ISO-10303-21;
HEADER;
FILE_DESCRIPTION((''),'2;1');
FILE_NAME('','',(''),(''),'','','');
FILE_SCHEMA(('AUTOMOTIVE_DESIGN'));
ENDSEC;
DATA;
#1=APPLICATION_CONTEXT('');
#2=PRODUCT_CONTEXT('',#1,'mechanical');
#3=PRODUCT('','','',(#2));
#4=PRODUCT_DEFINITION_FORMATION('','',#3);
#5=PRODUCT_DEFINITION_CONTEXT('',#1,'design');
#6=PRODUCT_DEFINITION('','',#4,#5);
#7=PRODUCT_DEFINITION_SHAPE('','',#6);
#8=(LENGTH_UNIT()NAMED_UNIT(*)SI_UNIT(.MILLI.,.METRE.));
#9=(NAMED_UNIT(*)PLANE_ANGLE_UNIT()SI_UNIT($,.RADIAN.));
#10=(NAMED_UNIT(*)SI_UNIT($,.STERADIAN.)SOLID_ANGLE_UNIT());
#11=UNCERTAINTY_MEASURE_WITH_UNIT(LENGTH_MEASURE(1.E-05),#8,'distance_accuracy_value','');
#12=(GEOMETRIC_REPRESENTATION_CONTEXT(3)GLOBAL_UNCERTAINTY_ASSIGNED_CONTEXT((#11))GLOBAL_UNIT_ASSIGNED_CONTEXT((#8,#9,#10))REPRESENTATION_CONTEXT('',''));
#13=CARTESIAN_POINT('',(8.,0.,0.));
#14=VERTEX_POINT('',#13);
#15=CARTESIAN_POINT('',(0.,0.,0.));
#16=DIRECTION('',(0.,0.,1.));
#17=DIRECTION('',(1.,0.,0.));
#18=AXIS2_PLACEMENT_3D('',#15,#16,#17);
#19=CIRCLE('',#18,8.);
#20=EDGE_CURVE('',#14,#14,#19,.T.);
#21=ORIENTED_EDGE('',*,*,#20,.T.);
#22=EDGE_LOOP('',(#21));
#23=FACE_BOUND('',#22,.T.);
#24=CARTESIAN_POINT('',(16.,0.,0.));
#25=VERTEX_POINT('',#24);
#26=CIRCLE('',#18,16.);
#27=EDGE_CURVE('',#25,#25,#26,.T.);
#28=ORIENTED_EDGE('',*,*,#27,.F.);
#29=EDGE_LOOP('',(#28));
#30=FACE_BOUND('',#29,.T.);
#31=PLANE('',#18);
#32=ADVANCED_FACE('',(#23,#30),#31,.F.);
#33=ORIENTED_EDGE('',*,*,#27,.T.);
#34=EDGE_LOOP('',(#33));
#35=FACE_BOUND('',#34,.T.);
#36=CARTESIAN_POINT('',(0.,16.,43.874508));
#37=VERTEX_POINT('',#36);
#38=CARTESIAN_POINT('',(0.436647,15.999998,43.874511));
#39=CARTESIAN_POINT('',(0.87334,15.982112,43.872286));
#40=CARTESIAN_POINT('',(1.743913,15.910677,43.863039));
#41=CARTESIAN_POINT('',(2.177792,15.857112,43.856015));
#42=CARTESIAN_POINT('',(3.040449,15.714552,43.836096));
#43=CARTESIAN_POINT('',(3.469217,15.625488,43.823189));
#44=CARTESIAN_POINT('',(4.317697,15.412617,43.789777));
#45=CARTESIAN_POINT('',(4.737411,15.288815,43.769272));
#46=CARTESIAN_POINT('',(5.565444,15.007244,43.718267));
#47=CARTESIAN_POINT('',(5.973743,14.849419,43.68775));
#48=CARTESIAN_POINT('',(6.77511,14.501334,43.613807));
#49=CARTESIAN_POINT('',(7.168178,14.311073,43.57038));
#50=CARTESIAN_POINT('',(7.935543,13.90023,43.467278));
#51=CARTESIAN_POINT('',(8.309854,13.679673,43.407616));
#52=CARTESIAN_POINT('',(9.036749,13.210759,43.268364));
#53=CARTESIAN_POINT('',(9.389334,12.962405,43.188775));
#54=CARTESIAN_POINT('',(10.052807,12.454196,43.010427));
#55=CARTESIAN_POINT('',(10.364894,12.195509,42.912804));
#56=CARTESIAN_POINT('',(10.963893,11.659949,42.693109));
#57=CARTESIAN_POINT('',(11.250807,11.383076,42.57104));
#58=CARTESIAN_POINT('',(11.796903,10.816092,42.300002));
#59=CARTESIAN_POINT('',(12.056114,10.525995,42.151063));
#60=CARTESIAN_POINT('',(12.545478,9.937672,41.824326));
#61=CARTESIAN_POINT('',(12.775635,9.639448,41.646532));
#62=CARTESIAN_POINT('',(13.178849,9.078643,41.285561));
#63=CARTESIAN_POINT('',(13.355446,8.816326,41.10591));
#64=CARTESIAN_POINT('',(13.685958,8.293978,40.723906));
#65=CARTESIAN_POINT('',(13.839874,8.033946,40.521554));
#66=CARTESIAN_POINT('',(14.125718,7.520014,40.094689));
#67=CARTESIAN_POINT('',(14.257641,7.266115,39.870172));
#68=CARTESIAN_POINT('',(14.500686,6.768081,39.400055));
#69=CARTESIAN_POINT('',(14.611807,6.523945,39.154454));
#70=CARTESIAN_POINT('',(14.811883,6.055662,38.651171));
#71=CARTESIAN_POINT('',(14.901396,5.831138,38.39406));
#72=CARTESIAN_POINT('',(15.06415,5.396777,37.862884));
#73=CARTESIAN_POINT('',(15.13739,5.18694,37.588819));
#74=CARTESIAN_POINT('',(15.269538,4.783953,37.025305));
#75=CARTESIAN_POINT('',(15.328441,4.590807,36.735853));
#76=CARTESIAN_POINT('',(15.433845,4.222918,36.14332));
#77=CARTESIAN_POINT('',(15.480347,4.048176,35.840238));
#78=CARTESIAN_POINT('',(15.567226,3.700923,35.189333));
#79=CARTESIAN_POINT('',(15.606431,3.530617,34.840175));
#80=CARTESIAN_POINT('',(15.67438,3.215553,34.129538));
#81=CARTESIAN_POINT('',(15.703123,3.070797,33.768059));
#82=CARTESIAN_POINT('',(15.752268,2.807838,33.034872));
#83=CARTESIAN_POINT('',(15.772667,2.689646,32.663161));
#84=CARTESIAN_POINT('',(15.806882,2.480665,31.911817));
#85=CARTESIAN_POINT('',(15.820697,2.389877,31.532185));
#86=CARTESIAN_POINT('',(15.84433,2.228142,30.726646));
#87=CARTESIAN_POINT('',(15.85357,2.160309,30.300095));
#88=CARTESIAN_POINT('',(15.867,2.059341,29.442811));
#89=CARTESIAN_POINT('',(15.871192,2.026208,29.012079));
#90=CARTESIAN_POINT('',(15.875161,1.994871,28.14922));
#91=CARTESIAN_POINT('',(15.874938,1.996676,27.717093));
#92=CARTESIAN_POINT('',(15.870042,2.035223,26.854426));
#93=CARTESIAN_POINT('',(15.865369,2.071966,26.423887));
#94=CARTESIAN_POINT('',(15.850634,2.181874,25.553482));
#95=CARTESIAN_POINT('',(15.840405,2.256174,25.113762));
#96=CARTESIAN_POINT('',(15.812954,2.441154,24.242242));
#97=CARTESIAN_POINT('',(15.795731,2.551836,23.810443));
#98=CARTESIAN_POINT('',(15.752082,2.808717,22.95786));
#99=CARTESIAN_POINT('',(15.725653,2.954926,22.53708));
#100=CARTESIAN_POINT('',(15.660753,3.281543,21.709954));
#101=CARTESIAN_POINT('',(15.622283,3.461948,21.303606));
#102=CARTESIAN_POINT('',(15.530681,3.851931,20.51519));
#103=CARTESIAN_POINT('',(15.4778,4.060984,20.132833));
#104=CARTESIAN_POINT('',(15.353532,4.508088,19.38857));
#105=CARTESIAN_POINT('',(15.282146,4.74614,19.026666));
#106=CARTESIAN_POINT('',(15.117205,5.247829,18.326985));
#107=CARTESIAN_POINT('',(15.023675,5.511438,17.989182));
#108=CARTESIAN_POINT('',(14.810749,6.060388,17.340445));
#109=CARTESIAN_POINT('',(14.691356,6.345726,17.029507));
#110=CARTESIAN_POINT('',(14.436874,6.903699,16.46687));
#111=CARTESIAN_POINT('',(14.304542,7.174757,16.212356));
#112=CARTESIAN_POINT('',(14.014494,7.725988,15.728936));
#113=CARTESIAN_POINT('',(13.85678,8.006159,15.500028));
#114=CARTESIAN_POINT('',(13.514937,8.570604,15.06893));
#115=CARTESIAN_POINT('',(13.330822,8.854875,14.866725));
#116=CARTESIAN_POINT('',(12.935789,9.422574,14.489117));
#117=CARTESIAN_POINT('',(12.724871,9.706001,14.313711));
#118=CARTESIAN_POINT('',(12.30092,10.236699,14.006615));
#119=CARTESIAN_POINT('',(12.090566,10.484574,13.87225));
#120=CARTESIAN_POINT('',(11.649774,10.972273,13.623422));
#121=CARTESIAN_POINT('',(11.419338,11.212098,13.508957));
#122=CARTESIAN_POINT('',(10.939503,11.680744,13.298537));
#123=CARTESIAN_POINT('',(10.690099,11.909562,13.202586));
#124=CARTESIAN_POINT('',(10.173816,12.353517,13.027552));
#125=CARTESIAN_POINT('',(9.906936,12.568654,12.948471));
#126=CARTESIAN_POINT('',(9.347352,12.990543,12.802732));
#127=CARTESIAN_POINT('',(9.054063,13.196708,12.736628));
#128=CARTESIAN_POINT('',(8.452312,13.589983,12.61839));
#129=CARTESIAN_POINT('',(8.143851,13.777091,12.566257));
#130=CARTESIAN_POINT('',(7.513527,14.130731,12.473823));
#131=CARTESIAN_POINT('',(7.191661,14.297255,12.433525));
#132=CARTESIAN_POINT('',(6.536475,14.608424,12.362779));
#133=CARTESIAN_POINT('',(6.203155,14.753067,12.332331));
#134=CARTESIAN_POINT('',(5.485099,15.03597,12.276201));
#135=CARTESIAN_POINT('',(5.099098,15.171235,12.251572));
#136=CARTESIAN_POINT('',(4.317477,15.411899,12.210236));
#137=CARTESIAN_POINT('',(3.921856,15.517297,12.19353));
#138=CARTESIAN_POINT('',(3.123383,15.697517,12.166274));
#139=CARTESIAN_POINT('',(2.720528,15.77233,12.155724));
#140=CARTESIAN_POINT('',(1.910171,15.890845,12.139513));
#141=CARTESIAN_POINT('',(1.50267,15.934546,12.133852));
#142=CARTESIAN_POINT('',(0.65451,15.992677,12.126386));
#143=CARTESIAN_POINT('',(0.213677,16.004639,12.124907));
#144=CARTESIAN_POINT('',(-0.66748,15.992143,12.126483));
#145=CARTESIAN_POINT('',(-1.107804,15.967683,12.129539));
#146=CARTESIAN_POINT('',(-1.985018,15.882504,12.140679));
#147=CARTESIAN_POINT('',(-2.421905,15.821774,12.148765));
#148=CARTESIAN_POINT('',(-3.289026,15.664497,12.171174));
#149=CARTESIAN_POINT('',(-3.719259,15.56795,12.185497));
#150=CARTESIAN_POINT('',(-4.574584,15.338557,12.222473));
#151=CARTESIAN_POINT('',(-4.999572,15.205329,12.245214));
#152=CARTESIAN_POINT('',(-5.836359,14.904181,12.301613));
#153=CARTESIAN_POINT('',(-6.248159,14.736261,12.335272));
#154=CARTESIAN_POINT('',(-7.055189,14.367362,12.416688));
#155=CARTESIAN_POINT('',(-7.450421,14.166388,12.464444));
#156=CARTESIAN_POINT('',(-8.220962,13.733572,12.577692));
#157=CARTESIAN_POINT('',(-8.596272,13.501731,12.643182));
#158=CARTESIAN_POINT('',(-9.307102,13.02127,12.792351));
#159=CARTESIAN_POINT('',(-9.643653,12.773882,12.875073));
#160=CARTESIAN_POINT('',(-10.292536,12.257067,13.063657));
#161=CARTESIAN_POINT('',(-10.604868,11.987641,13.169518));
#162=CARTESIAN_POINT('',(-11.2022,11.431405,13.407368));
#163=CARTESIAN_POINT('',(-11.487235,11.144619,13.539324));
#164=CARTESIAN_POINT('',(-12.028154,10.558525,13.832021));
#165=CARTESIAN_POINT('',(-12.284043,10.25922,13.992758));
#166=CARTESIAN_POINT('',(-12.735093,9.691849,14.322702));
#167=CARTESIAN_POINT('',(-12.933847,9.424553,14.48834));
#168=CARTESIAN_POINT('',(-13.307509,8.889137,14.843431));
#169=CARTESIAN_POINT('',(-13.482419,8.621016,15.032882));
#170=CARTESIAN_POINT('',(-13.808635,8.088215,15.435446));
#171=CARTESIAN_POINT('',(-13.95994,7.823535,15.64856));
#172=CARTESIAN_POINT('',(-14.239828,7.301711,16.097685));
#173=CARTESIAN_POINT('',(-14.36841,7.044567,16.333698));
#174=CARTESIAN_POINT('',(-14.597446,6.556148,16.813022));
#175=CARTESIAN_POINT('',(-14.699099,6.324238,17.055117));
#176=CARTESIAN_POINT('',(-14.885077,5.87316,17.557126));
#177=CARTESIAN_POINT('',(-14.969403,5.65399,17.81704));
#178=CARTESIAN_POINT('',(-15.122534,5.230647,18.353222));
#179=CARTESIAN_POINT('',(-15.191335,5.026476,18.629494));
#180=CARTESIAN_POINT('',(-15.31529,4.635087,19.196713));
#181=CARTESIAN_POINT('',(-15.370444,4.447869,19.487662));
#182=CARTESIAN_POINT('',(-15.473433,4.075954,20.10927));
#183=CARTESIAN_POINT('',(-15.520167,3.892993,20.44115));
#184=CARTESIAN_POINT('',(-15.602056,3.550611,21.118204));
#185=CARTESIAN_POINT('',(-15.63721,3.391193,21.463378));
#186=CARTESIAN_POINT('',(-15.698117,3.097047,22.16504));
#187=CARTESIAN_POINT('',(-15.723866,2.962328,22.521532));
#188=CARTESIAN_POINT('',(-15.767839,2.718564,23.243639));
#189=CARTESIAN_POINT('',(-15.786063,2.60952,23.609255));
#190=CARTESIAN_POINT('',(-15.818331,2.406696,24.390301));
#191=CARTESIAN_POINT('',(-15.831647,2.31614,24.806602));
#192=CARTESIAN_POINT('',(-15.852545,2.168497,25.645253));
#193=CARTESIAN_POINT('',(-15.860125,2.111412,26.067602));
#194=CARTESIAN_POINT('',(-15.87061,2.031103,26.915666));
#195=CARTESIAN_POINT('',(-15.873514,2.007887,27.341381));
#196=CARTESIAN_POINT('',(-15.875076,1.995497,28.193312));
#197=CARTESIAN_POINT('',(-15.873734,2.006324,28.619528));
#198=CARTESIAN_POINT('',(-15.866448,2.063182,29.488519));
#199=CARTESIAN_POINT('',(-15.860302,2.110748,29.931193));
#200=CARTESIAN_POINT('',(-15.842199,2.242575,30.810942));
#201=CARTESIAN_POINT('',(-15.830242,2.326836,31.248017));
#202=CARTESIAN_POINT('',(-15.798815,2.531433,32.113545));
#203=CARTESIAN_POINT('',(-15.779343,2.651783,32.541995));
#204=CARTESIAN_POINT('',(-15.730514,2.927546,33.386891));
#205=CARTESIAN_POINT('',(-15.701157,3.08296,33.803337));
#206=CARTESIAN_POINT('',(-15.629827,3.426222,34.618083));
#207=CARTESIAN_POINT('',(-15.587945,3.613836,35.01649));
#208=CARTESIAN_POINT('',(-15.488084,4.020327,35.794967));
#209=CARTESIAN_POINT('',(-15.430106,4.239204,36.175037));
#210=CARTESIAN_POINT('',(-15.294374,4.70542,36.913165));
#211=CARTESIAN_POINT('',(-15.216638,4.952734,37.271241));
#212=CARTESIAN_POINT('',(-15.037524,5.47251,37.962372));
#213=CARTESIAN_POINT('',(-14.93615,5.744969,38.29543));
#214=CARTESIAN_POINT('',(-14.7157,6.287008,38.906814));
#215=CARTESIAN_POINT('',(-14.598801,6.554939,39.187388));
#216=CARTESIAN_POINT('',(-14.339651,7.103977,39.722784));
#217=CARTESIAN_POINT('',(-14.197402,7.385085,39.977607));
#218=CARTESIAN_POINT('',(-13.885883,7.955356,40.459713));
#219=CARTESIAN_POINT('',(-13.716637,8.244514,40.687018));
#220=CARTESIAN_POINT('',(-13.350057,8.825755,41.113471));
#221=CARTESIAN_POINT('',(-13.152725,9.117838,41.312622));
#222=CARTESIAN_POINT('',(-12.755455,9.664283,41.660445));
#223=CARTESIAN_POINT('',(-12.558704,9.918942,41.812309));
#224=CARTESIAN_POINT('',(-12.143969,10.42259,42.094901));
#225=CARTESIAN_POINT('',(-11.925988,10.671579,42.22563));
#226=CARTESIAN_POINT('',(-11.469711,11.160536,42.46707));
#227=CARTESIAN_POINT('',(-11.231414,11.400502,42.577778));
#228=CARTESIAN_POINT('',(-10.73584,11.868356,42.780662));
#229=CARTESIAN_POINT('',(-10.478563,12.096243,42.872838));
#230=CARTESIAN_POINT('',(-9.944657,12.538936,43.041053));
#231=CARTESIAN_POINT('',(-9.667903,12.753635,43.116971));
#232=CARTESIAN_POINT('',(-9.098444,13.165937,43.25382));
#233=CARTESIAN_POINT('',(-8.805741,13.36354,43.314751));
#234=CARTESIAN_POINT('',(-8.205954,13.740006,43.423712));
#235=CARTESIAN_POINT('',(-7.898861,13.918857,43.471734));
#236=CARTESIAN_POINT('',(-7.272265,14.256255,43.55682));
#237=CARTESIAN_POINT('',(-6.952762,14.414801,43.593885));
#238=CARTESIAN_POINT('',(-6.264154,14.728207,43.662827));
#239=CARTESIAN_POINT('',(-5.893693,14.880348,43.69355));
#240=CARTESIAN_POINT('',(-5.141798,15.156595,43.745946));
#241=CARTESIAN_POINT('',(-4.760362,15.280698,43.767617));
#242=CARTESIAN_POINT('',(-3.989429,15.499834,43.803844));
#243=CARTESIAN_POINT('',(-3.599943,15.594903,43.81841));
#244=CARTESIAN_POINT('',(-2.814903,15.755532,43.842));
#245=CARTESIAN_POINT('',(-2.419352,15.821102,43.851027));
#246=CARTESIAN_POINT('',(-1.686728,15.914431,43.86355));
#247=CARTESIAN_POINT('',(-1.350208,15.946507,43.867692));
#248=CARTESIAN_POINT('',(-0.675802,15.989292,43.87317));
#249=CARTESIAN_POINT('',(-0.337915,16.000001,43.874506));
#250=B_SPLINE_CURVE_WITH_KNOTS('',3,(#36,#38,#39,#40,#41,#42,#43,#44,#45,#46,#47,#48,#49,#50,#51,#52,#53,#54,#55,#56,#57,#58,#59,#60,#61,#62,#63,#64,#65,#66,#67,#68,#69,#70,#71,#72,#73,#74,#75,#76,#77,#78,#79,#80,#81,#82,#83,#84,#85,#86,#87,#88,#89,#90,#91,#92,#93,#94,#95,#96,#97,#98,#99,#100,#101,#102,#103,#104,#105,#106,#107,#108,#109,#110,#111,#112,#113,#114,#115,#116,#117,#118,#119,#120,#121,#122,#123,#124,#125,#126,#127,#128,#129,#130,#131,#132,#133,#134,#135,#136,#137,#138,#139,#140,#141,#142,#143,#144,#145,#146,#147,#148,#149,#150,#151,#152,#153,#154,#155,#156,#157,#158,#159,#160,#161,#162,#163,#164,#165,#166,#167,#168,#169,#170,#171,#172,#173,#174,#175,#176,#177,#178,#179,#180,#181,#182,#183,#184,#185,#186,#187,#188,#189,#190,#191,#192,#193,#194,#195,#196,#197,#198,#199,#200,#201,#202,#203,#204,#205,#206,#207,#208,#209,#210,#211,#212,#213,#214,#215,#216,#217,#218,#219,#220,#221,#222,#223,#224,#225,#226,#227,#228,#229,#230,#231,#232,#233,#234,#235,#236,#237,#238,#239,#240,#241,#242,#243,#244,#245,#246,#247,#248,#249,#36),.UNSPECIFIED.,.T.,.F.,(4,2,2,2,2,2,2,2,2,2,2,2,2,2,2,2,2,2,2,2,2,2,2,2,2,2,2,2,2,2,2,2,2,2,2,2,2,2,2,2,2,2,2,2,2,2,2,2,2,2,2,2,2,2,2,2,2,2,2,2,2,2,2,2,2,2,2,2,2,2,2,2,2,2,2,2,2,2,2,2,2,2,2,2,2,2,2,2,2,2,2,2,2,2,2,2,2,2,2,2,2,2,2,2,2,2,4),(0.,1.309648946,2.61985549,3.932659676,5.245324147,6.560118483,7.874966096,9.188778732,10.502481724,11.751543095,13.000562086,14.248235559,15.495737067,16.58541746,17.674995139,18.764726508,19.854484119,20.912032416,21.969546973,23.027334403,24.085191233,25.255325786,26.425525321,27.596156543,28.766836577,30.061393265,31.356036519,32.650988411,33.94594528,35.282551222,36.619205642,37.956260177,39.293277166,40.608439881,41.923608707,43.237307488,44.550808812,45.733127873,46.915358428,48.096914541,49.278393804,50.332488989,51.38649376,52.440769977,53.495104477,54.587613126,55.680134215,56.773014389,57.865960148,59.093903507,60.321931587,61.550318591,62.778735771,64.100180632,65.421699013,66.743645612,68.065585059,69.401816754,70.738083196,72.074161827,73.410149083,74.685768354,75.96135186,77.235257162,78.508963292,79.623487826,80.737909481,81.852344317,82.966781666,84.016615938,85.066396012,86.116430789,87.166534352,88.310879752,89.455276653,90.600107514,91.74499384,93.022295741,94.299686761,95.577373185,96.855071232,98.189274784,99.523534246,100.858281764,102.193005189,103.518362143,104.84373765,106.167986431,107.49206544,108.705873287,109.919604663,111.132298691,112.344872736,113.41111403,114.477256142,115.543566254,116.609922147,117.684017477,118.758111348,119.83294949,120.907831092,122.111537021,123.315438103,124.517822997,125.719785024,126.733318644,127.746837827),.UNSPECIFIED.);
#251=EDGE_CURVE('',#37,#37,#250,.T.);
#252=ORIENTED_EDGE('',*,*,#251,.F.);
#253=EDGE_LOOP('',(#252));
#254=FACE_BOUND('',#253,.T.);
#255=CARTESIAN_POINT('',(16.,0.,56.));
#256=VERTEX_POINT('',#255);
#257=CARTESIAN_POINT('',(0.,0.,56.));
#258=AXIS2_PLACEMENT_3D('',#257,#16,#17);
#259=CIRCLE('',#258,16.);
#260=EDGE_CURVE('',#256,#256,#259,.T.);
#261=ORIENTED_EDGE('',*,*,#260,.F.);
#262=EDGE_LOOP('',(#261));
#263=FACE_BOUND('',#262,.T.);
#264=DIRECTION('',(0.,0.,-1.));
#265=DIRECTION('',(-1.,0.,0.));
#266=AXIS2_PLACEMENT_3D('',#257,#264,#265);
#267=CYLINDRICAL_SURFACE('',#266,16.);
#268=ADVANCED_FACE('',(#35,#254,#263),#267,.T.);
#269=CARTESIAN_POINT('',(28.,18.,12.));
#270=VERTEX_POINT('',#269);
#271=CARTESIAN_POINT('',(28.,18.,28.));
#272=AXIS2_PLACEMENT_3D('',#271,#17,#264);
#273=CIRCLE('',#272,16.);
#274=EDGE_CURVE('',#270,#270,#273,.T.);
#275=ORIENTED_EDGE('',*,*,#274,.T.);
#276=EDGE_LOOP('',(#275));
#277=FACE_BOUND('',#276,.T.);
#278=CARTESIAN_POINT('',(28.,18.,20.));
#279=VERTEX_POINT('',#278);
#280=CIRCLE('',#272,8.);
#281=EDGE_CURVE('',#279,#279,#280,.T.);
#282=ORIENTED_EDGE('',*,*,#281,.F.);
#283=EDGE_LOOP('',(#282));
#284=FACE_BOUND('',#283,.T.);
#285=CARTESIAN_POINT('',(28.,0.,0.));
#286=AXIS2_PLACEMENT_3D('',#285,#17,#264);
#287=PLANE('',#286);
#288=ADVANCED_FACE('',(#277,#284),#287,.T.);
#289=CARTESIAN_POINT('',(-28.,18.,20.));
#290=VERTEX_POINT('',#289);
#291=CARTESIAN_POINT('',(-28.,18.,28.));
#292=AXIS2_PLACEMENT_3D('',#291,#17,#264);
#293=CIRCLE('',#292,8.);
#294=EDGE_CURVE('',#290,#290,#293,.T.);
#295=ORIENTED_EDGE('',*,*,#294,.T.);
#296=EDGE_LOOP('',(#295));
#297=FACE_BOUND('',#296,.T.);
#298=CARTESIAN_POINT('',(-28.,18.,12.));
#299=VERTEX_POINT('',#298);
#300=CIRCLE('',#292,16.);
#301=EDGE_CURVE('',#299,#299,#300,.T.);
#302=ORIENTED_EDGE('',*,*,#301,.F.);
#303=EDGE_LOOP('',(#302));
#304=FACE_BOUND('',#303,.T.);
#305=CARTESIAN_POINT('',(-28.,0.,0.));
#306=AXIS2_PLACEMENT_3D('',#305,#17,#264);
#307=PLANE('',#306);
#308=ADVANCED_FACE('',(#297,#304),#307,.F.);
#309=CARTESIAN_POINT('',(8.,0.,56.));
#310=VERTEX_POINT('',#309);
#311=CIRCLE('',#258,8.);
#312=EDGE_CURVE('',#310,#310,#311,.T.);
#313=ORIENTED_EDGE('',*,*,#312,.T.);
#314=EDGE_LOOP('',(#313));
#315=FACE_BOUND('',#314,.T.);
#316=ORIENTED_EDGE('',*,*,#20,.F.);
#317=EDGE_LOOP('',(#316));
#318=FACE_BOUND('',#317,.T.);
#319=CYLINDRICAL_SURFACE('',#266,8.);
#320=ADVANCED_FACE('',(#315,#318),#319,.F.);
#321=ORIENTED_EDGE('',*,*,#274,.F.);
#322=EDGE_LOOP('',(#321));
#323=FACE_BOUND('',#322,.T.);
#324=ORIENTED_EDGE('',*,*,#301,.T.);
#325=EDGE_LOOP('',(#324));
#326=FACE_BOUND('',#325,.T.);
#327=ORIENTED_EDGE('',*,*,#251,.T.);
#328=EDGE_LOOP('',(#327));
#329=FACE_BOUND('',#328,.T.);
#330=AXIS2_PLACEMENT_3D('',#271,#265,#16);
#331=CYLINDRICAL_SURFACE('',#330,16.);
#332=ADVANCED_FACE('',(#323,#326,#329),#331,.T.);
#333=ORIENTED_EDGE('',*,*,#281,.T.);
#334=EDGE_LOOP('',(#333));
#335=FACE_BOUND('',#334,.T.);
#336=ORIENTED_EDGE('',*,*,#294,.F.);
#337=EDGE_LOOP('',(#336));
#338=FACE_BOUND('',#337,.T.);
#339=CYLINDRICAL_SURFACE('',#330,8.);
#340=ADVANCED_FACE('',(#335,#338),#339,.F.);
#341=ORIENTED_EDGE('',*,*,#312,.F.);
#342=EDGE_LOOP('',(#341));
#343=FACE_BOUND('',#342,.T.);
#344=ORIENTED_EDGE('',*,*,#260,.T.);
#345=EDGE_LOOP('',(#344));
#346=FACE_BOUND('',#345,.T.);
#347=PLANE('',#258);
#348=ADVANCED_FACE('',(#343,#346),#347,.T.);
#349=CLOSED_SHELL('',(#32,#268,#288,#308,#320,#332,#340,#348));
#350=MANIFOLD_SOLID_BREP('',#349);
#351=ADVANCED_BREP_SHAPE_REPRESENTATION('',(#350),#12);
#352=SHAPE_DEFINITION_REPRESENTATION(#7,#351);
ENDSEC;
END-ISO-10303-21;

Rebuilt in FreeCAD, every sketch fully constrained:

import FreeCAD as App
import Part
import Sketcher

V = App.Vector
Q = App.Units.Quantity

doc = App.newDocument("Part")
body = doc.addObject("PartDesign::Body", "Body")

sketch1 = body.newObject("Sketcher::SketchObject", "Sketch")
sketch1.AttachmentSupport = (doc.getObject("XY_Plane"), [""])
sketch1.MapMode = "FlatFace"
sketch1.addGeometry(Part.Circle(V(0, 0, 0), V(0, 0, 1), 16), False)
sketch1.addGeometry(Part.Circle(V(0, 0, 0), V(0, 0, 1), 8), False)
sketch1.addConstraint(Sketcher.Constraint("Coincident", 0, 3, -1, 1))
sketch1.addConstraint(Sketcher.Constraint("Coincident", 1, 3, -1, 1))
sketch1.addConstraint(Sketcher.Constraint("Diameter", 0, Q("32 mm")))
sketch1.addConstraint(Sketcher.Constraint("Diameter", 1, Q("16 mm")))
pad1 = body.newObject("PartDesign::Pad", "Pad")
pad1.Profile = sketch1
pad1.Length = 56

sketch2 = body.newObject("Sketcher::SketchObject", "Sketch001")
sketch2.AttachmentSupport = (doc.getObject("YZ_Plane"), [""])
sketch2.MapMode = "FlatFace"
sketch2.addGeometry(Part.Circle(V(18, 28, 0), V(0, 0, 1), 16), False)
sketch2.addGeometry(Part.Circle(V(18, 28, 0), V(0, 0, 1), 8), False)
sketch2.addConstraint(Sketcher.Constraint("Coincident", 1, 3, 0, 3))
sketch2.addConstraint(Sketcher.Constraint("Diameter", 0, Q("32 mm")))
sketch2.addConstraint(Sketcher.Constraint("Diameter", 1, Q("16 mm")))
sketch2.addConstraint(Sketcher.Constraint("DistanceX", -1, 1, 0, 3, Q("18 mm")))
sketch2.addConstraint(Sketcher.Constraint("DistanceY", -1, 1, 0, 3, Q("28 mm")))
pad2 = body.newObject("PartDesign::Pad", "Pad001")
pad2.Profile = sketch2
pad2.Length = 56
pad2.Midplane = True

sketch3 = body.newObject("Sketcher::SketchObject", "Sketch002")
sketch3.AttachmentSupport = (doc.getObject("YZ_Plane"), [""])
sketch3.MapMode = "FlatFace"
sketch3.addGeometry(Part.Circle(V(18, 28, 0), V(0, 0, 1), 8), False)
sketch3.addConstraint(Sketcher.Constraint("Diameter", 0, Q("16 mm")))
sketch3.addConstraint(Sketcher.Constraint("DistanceX", -1, 1, 0, 3, Q("18 mm")))
sketch3.addConstraint(Sketcher.Constraint("DistanceY", -1, 1, 0, 3, Q("28 mm")))
pocket1 = body.newObject("PartDesign::Pocket", "Pocket")
pocket1.Profile = sketch3
pocket1.Length = 56
pocket1.Midplane = True

sketch4 = body.newObject("Sketcher::SketchObject", "Sketch003")
sketch4.AttachmentSupport = (doc.getObject("XY_Plane"), [""])
sketch4.MapMode = "FlatFace"
sketch4.addGeometry(Part.Circle(V(0, 0, 0), V(0, 0, 1), 8), False)
sketch4.addConstraint(Sketcher.Constraint("Coincident", 0, 3, -1, 1))
sketch4.addConstraint(Sketcher.Constraint("Diameter", 0, Q("16 mm")))
pocket2 = body.newObject("PartDesign::Pocket", "Pocket001")
pocket2.Profile = sketch4
pocket2.Length = 56
pocket2.Reversed = True

doc.recompute()
